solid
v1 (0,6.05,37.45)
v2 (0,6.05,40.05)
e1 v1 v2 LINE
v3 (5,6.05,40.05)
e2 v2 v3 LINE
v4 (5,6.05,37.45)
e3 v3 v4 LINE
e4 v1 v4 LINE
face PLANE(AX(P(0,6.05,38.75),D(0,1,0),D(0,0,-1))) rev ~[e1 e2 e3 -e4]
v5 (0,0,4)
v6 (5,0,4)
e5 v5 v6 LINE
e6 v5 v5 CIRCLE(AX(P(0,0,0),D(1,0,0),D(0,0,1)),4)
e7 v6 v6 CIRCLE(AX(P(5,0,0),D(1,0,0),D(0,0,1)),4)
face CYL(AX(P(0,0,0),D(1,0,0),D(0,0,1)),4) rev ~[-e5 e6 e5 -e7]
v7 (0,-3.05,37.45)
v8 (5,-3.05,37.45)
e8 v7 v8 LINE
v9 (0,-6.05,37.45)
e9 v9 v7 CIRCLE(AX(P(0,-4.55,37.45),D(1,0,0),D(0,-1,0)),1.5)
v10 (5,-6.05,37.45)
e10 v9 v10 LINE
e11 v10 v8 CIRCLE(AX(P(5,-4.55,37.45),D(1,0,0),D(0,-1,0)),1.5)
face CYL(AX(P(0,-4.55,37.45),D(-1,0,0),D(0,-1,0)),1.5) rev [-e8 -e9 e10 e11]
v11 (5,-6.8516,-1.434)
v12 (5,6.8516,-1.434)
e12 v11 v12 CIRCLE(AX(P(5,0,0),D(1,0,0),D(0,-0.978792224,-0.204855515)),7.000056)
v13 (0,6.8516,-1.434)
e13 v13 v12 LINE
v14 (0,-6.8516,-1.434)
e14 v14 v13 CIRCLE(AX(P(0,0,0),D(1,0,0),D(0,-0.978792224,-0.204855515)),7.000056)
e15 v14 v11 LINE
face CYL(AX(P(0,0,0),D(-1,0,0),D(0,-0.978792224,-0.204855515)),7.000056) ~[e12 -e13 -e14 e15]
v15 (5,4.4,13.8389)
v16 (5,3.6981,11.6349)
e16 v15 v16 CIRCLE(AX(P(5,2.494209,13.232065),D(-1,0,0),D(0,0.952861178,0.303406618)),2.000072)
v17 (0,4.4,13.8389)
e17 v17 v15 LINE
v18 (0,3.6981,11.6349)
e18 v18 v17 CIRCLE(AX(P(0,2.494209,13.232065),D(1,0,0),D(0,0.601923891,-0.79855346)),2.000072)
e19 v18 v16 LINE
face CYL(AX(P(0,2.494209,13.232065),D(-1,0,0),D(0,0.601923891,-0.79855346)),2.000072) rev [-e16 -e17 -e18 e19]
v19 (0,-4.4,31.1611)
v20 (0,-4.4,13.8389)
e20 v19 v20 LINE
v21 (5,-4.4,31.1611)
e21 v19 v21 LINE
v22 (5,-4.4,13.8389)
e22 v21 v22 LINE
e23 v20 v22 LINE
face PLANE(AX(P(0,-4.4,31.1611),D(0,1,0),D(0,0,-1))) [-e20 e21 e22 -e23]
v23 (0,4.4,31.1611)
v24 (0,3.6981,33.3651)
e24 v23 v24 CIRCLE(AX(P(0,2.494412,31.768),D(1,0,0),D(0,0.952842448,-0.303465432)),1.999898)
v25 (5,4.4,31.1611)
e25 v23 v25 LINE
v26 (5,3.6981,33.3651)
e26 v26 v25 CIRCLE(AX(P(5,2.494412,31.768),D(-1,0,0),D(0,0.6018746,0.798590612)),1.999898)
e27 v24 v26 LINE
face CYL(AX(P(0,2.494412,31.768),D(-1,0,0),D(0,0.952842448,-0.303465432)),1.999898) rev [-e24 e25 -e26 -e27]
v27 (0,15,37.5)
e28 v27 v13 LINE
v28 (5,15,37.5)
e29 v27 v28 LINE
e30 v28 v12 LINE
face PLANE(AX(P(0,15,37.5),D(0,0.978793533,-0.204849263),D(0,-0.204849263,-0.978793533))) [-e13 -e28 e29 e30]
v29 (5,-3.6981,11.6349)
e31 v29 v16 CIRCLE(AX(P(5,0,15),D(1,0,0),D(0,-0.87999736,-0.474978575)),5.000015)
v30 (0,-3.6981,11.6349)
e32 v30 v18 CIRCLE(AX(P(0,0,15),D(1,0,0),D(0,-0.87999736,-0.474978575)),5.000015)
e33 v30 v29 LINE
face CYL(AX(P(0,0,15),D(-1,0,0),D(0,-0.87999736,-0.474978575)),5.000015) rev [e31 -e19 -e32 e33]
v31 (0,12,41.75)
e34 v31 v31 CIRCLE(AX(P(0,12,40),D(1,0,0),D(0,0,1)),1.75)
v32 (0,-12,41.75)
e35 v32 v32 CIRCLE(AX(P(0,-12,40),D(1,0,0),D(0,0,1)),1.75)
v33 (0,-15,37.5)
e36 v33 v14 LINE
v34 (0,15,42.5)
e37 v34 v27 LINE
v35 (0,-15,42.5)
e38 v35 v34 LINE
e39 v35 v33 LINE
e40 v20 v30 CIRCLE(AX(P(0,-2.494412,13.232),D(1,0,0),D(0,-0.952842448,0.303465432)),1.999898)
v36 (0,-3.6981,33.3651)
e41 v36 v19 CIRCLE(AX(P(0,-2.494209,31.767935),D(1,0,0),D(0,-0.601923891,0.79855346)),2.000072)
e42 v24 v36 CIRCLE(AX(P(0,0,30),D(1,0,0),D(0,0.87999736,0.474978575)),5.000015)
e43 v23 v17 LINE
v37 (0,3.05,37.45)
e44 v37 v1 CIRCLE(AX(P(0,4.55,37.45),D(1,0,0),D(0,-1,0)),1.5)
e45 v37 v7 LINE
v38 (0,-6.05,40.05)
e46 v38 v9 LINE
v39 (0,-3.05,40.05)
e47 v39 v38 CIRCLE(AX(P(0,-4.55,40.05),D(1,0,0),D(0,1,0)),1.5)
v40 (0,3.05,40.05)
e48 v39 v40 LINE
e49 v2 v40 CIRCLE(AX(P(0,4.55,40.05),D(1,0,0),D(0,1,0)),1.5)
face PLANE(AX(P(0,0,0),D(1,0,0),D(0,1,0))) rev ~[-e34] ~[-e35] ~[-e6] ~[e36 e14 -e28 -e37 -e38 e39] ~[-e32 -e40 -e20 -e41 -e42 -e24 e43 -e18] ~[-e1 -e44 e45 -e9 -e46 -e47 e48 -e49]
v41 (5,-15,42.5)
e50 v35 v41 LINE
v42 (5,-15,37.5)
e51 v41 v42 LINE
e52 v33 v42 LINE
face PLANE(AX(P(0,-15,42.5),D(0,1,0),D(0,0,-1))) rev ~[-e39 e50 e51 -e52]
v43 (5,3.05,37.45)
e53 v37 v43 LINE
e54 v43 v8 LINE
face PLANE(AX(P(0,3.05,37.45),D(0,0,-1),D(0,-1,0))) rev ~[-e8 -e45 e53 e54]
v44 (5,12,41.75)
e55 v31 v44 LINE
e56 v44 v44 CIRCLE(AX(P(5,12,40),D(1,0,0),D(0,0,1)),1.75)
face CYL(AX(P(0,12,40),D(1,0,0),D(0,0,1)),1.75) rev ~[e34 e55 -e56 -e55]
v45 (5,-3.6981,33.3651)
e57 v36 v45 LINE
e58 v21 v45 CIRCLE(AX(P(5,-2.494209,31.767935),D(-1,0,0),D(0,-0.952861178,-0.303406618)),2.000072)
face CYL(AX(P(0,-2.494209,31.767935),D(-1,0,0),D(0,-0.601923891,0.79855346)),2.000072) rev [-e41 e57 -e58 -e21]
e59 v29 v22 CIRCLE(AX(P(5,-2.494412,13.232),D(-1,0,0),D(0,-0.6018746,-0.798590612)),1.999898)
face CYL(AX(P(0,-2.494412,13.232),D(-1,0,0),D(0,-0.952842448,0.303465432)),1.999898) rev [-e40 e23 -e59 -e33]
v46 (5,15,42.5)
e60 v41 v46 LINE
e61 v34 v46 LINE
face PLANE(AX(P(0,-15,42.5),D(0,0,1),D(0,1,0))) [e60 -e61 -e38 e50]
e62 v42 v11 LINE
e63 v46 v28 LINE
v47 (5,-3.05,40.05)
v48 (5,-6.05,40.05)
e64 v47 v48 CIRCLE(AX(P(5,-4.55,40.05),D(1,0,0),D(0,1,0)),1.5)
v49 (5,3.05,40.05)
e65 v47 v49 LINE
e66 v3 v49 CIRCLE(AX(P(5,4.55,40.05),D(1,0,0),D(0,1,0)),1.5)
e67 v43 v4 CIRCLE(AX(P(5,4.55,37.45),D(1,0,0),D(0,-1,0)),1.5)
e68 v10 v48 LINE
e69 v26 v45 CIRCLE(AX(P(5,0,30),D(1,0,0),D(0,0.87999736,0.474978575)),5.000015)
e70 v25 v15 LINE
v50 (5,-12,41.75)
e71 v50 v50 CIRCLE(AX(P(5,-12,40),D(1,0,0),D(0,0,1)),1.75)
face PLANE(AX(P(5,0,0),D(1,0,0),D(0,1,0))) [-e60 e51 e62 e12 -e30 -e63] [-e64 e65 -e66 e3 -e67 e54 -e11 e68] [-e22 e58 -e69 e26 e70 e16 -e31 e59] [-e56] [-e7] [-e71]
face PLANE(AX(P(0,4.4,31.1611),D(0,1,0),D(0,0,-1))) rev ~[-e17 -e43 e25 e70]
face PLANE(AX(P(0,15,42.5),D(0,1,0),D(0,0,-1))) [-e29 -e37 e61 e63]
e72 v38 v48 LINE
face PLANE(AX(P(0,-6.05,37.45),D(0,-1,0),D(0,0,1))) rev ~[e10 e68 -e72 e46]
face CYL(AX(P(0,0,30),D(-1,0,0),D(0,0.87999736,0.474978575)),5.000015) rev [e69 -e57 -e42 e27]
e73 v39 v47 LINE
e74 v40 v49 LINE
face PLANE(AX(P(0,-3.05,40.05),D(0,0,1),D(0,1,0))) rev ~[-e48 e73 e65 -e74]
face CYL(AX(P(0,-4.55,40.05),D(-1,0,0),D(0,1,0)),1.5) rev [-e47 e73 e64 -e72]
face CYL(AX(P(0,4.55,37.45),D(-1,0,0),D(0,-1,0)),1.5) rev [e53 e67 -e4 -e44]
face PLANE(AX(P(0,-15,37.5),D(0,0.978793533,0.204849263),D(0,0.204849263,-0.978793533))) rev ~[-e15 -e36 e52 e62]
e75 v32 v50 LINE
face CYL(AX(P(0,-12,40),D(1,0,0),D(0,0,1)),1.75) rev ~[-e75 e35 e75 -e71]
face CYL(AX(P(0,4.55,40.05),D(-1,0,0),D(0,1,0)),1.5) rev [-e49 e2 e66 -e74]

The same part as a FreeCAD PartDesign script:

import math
import FreeCAD as App
import Part
import Sketcher
Q = App.Units.Quantity

doc = App.newDocument("Part")
body = doc.addObject("PartDesign::Body", "Body")

sketch1 = body.newObject("Sketcher::SketchObject", "Sketch")
sketch1.AttachmentSupport = (doc.getObject("YZ_Plane"), [""])
sketch1.MapMode = "FlatFace"
sketch1.addGeometry([
    Part.LineSegment(App.Vector(15, 42.5, 0), App.Vector(-15, 42.5, 0)),
    Part.LineSegment(App.Vector(-15, 42.5, 0), App.Vector(-15, 37.5, 0)),
    Part.LineSegment(App.Vector(-15, 37.5, 0), App.Vector(-6.8516, -1.434, 0)),
    Part.ArcOfCircle(Part.Circle(App.Vector(0, 0, 0), App.Vector(0, 0, 1), 7.000056), math.radians(-168.178959), math.radians(-11.821041)),
    Part.LineSegment(App.Vector(6.8516, -1.434, 0), App.Vector(15, 37.5, 0)),
    Part.LineSegment(App.Vector(15, 37.5, 0), App.Vector(15, 42.5, 0)),
    Part.ArcOfCircle(Part.Circle(App.Vector(2.4943, 31.768, 0), App.Vector(0, 0, 1), 2.000005), math.radians(-17.664891), math.radians(52.993163)),
    Part.LineSegment(App.Vector(4.4, 31.1611, 0), App.Vector(4.4, 13.8389, 0)),
    Part.ArcOfCircle(Part.Circle(App.Vector(2.4943, 13.232, 0), App.Vector(0, 0, 1), 1.999966), math.radians(-52.993163), math.radians(17.664891)),
    Part.ArcOfCircle(Part.Circle(App.Vector(0, 15, 0), App.Vector(0, 0, 1), 5.000015), math.radians(-137.699255), math.radians(-42.300745)),
    Part.ArcOfCircle(Part.Circle(App.Vector(-2.4943, 13.232, 0), App.Vector(0, 0, 1), 2.000005), math.radians(162.335109), math.radians(232.993163)),
    Part.LineSegment(App.Vector(-4.4, 13.8389, 0), App.Vector(-4.4, 31.1611, 0)),
    Part.ArcOfCircle(Part.Circle(App.Vector(-2.4943, 31.768, 0), App.Vector(0, 0, 1), 1.999966), math.radians(127.006837), math.radians(197.664891)),
    Part.ArcOfCircle(Part.Circle(App.Vector(0, 30, 0), App.Vector(0, 0, 1), 5.000015), math.radians(42.300745), math.radians(137.699255)),
    Part.LineSegment(App.Vector(6.05, 40.05, 0), App.Vector(6.05, 37.45, 0)),
    Part.ArcOfCircle(Part.Circle(App.Vector(4.55, 37.45, 0), App.Vector(0, 0, 1), 1.5), math.radians(180), math.radians(360)),
    Part.LineSegment(App.Vector(3.05, 37.45, 0), App.Vector(-3.05, 37.45, 0)),
    Part.ArcOfCircle(Part.Circle(App.Vector(-4.55, 37.45, 0), App.Vector(0, 0, 1), 1.5), math.radians(180), math.radians(360)),
    Part.LineSegment(App.Vector(-6.05, 37.45, 0), App.Vector(-6.05, 40.05, 0)),
    Part.ArcOfCircle(Part.Circle(App.Vector(-4.55, 40.05, 0), App.Vector(0, 0, 1), 1.5), math.radians(0), math.radians(180)),
    Part.LineSegment(App.Vector(-3.05, 40.05, 0), App.Vector(3.05, 40.05, 0)),
    Part.ArcOfCircle(Part.Circle(App.Vector(4.55, 40.05, 0), App.Vector(0, 0, 1), 1.5), math.radians(0), math.radians(180)),
], False)
sketch1.addConstraint([
    Sketcher.Constraint("Coincident", 0, 2, 1, 1),
    Sketcher.Constraint("Coincident", 1, 2, 2, 1),
    Sketcher.Constraint("Tangent", 2, 2, 3, 1),
    Sketcher.Constraint("Tangent", 3, 2, 4, 1),
    Sketcher.Constraint("Coincident", 4, 2, 5, 1),
    Sketcher.Constraint("Coincident", 5, 2, 0, 1),
    Sketcher.Constraint("Coincident", 6, 1, 7, 1),
    Sketcher.Constraint("Coincident", 7, 2, 8, 2),
    Sketcher.Constraint("Coincident", 8, 1, 9, 2),
    Sketcher.Constraint("Coincident", 9, 1, 10, 2),
    Sketcher.Constraint("Coincident", 10, 1, 11, 1),
    Sketcher.Constraint("Coincident", 11, 2, 12, 2),
    Sketcher.Constraint("Coincident", 12, 1, 13, 2),
    Sketcher.Constraint("Coincident", 13, 1, 6, 2),
    Sketcher.Constraint("Tangent", 14, 2, 15, 2),
    Sketcher.Constraint("Coincident", 15, 1, 16, 1),
    Sketcher.Constraint("Coincident", 16, 2, 17, 2),
    Sketcher.Constraint("Tangent", 17, 1, 18, 1),
    Sketcher.Constraint("Tangent", 18, 2, 19, 2),
    Sketcher.Constraint("Coincident", 19, 1, 20, 1),
    Sketcher.Constraint("Coincident", 20, 2, 21, 2),
    Sketcher.Constraint("Tangent", 21, 1, 14, 1),
    Sketcher.Constraint("Horizontal", 0),
    Sketcher.Constraint("Vertical", 1),
    Sketcher.Constraint("Vertical", 5),
    Sketcher.Constraint("Vertical", 7),
    Sketcher.Constraint("Vertical", 11),
    Sketcher.Constraint("Vertical", 14),
    Sketcher.Constraint("Horizontal", 16),
    Sketcher.Constraint("Vertical", 18),
    Sketcher.Constraint("Horizontal", 20),
    Sketcher.Constraint("Coincident", 3, 3, -1, 1),
    Sketcher.Constraint("Equal", 6, 8),
    Sketcher.Constraint("Equal", 8, 10),
    Sketcher.Constraint("Equal", 10, 12),
    Sketcher.Constraint("Equal", 9, 13),
    Sketcher.Constraint("Equal", 15, 17),
    Sketcher.Constraint("Equal", 17, 19),
    Sketcher.Constraint("Equal", 19, 21),
    Sketcher.Constraint("Symmetric", 8, 3, 10, 3, -2),
    Sketcher.Constraint("Symmetric", 6, 3, 12, 3, -2),
    Sketcher.Constraint("Symmetric", 15, 3, 17, 3, -2),
    Sketcher.Constraint("Symmetric", 1, 2, 4, 2, -2),
    Sketcher.Constraint("PointOnObject", 9, 3, -2),
    Sketcher.Constraint("PointOnObject", 13, 3, -2),
    Sketcher.Constraint("Horizontal", 19, 3, 21, 3),
    Sketcher.Constraint("Horizontal", 7, 2, 10, 1),
    Sketcher.Constraint("Horizontal", 14, 2, 15, 1),
    Sketcher.Constraint("Horizontal", 18, 2, 19, 1),
    Sketcher.Constraint("Vertical", 6, 3, 8, 3),
    Sketcher.Constraint("Vertical", 9, 1, 12, 1),
    Sketcher.Constraint("Radius", 3, Q("7 mm")),
    Sketcher.Constraint("Radius", 6, Q("2 mm")),
    Sketcher.Constraint("Radius", 9, Q("5 mm")),
    Sketcher.Constraint("Radius", 15, Q("1.5 mm")),
    Sketcher.Constraint("DistanceX", 0, 2, 0, 1, Q("30 mm")),
    Sketcher.Constraint("DistanceY", 1, 2, 1, 1, Q("5 mm")),
    Sketcher.Constraint("DistanceY", -1, 1, 9, 3, Q("15 mm")),
    Sketcher.Constraint("DistanceY", -1, 1, 13, 3, Q("30 mm")),
    Sketcher.Constraint("DistanceX", 11, 2, 6, 1, Q("8.8 mm")),
    Sketcher.Constraint("DistanceY", 17, 3, 1, 2, Q("0.05 mm")),
    Sketcher.Constraint("DistanceX", 16, 2, 16, 1, Q("6.1 mm")),
    Sketcher.Constraint("DistanceY", 14, 2, 14, 1, Q("2.6 mm")),
    Sketcher.Constraint("DistanceY", -1, 1, 0, 2, Q("42.5 mm")),
    Sketcher.Constraint("DistanceY", 7, 2, 7, 1, Q("17.3222 mm")),
    Sketcher.Constraint("DistanceY", -1, 1, 6, 3, Q("31.768 mm")),
])
pad1 = body.newObject("PartDesign::Pad", "Pad")
pad1.Profile = sketch1
pad1.Length = 5

sketch2 = body.newObject("Sketcher::SketchObject", "Sketch001")
sketch2.AttachmentSupport = (doc.getObject("YZ_Plane"), [""])
sketch2.MapMode = "FlatFace"
sketch2.addGeometry([
    Part.Circle(App.Vector(-12, 40, 0), App.Vector(0, 0, 1), 1.75),
    Part.Circle(App.Vector(12, 40, 0), App.Vector(0, 0, 1), 1.75),
], False)
sketch2.addConstraint([
    Sketcher.Constraint("Equal", 0, 1),
    Sketcher.Constraint("Symmetric", 0, 3, 1, 3, -2),
    Sketcher.Constraint("Diameter", 0, Q("3.5 mm")),
    Sketcher.Constraint("DistanceX", 0, 3, -1, 1, Q("12 mm")),
    Sketcher.Constraint("DistanceY", -1, 1, 0, 3, Q("40 mm")),
])
doc.recompute()
hole = body.newObject("PartDesign::Hole", "Hole")
hole.Profile = sketch2
hole.ThreadType = "None"
hole.Diameter = 3.5
hole.DepthType = "ThroughAll"
hole.Reversed = True

sketch3 = body.newObject("Sketcher::SketchObject", "Sketch002")
sketch3.AttachmentSupport = (doc.getObject("YZ_Plane"), [""])
sketch3.MapMode = "FlatFace"
sketch3.addGeometry(Part.Circle(App.Vector(0, 0, 0), App.Vector(0, 0, 1), 4), False)
sketch3.addConstraint([
    Sketcher.Constraint("Coincident", 0, 3, -1, 1),
    Sketcher.Constraint("Diameter", 0, Q("8 mm")),
])
doc.recompute()
hole2 = body.newObject("PartDesign::Hole", "Hole001")
hole2.Profile = sketch3
hole2.ThreadType = "None"
hole2.Diameter = 8
hole2.DepthType = "ThroughAll"
hole2.Reversed = True

doc.recompute()
